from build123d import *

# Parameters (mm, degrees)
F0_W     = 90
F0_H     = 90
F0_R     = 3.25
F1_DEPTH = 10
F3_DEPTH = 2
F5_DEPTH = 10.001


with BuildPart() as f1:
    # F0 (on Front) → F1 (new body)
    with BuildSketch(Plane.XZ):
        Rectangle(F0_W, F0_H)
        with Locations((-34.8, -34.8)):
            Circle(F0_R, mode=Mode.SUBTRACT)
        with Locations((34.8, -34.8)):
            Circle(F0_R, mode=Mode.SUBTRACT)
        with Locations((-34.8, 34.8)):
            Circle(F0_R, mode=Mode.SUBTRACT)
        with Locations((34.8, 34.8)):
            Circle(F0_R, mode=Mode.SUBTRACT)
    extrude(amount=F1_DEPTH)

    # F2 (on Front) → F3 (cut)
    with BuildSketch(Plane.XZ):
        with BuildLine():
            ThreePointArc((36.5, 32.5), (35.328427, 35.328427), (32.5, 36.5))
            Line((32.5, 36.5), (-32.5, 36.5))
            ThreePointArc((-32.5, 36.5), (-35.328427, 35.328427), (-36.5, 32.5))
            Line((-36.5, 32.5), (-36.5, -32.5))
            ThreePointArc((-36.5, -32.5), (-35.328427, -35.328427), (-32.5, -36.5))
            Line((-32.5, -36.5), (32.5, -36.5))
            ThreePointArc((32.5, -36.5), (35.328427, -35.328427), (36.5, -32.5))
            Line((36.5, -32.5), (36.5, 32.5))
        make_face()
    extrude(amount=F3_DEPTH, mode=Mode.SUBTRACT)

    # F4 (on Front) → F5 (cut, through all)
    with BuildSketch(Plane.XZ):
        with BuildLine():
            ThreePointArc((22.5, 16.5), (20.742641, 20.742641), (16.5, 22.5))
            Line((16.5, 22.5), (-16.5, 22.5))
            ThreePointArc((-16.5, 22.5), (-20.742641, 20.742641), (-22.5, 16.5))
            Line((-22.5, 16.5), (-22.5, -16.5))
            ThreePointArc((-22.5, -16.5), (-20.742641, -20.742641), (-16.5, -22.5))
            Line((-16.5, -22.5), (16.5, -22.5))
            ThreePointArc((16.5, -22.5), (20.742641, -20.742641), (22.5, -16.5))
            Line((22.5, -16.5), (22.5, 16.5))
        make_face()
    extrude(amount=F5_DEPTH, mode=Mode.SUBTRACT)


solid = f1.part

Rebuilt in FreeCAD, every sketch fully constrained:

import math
import FreeCAD as App
import Part
import Sketcher
from FreeCAD import Vector


def add_polygon(sketch, points):
    """Adds a closed chain of lines whose ends are joined by coincident constraints."""
    first, n = sketch.GeometryCount, len(points)
    for a, b in zip(points, points[1:] + points[:1]):
        sketch.addGeometry(Part.LineSegment(App.Vector(*a, 0), App.Vector(*b, 0)), False)
    for i in range(n):
        sketch.addConstraint(Sketcher.Constraint("Coincident", first + i, 2, first + (i + 1) % n, 1))

doc = App.newDocument("Part")
body = doc.addObject("PartDesign::Body", "Body")

# Sketch on XZ plane
sketch1 = body.newObject("Sketcher::SketchObject", "Sketch")
sketch1.AttachmentSupport = (doc.getObject("XZ_Plane"), [""])
sketch1.MapMode = "FlatFace"
add_polygon(sketch1, [(-45, 45), (-45, -45), (45, -45), (45, 45)])  # lines 0-3
sketch1.addGeometry(Part.Circle(Vector(-34.8, -34.8, 0), Vector(0, 0, 1), 3.2), False)  # 4
sketch1.addGeometry(Part.Circle(Vector(34.8, -34.8, 0), Vector(0, 0, 1), 3.2), False)  # 5
sketch1.addGeometry(Part.Circle(Vector(-34.8, 34.8, 0), Vector(0, 0, 1), 3.2), False)  # 6
sketch1.addGeometry(Part.Circle(Vector(34.8, 34.8, 0), Vector(0, 0, 1), 3.2), False)  # 7
sketch1.addConstraint(Sketcher.Constraint("Vertical", 0))
sketch1.addConstraint(Sketcher.Constraint("Horizontal", 1))
sketch1.addConstraint(Sketcher.Constraint("Vertical", 2))
sketch1.addConstraint(Sketcher.Constraint("Horizontal", 3))
sketch1.addConstraint(Sketcher.Constraint("Equal", 4, 5))
sketch1.addConstraint(Sketcher.Constraint("Equal", 5, 6))
sketch1.addConstraint(Sketcher.Constraint("Equal", 6, 7))
sketch1.addConstraint(Sketcher.Constraint("Symmetric", 5, 3, 6, 3, -1, 1))
sketch1.addConstraint(Sketcher.Constraint("Symmetric", 4, 3, 7, 3, -1, 1))
sketch1.addConstraint(Sketcher.Constraint("Symmetric", 0, 2, 2, 2, -1, 1))
sketch1.addConstraint(Sketcher.Constraint("Symmetric", 4, 3, 5, 3, -2))
sketch1.addConstraint(Sketcher.Constraint("Equal", 3, 0))
sketch1.addConstraint(Sketcher.Constraint("Diameter", 4, 6.5))
sketch1.addConstraint(Sketcher.Constraint("DistanceX", 1, 1, 1, 2, 90.0))
sketch1.addConstraint(Sketcher.Constraint("DistanceX", 4, 3, -1, 1, 34.8))
sketch1.addConstraint(Sketcher.Constraint("DistanceY", 4, 3, -1, 1, 34.8))
pad1 = body.newObject("PartDesign::Pad", "Pad")
pad1.Profile = sketch1
pad1.Length = 10

# Sketch on XZ plane
sketch2 = body.newObject("Sketcher::SketchObject", "Sketch001")
sketch2.AttachmentSupport = (doc.getObject("XZ_Plane"), [""])
sketch2.MapMode = "FlatFace"
sketch2.addGeometry(Part.ArcOfCircle(Part.Circle(Vector(32.5, 32.5, 0), Vector(0, 0, 1), 4), math.radians(0), math.radians(90)), False)
sketch2.addGeometry(Part.LineSegment(Vector(32.5, 36.5, 0), Vector(-32.5, 36.5, 0)), False)
sketch2.addGeometry(Part.ArcOfCircle(Part.Circle(Vector(-32.5, 32.5, 0), Vector(0, 0, 1), 4), math.radians(90), math.radians(180)), False)
sketch2.addGeometry(Part.LineSegment(Vector(-36.5, 32.5, 0), Vector(-36.5, -32.5, 0)), False)
sketch2.addGeometry(Part.ArcOfCircle(Part.Circle(Vector(-32.5, -32.5, 0), Vector(0, 0, 1), 4), math.radians(-180), math.radians(-90)), False)
sketch2.addGeometry(Part.LineSegment(Vector(-32.5, -36.5, 0), Vector(32.5, -36.5, 0)), False)
sketch2.addGeometry(Part.ArcOfCircle(Part.Circle(Vector(32.5, -32.5, 0), Vector(0, 0, 1), 4), math.radians(-90), math.radians(0)), False)
sketch2.addGeometry(Part.LineSegment(Vector(36.5, -32.5, 0), Vector(36.5, 32.5, 0)), False)
sketch2.addConstraint(Sketcher.Constraint("Tangent", 0, 2, 1, 1))
sketch2.addConstraint(Sketcher.Constraint("Tangent", 1, 2, 2, 1))
sketch2.addConstraint(Sketcher.Constraint("Tangent", 2, 2, 3, 1))
sketch2.addConstraint(Sketcher.Constraint("Tangent", 3, 2, 4, 1))
sketch2.addConstraint(Sketcher.Constraint("Tangent", 4, 2, 5, 1))
sketch2.addConstraint(Sketcher.Constraint("Tangent", 5, 2, 6, 1))
sketch2.addConstraint(Sketcher.Constraint("Tangent", 6, 2, 7, 1))
sketch2.addConstraint(Sketcher.Constraint("Tangent", 7, 2, 0, 1))
sketch2.addConstraint(Sketcher.Constraint("Horizontal", 1))
sketch2.addConstraint(Sketcher.Constraint("Vertical", 3))
sketch2.addConstraint(Sketcher.Constraint("Horizontal", 5))
sketch2.addConstraint(Sketcher.Constraint("Vertical", 7))
sketch2.addConstraint(Sketcher.Constraint("Equal", 0, 2))
sketch2.addConstraint(Sketcher.Constraint("Equal", 2, 4))
sketch2.addConstraint(Sketcher.Constraint("Equal", 4, 6))
sketch2.addConstraint(Sketcher.Constraint("Symmetric", 0, 3, 4, 3, -1, 1))
sketch2.addConstraint(Sketcher.Constraint("Equal", 5, 3))
sketch2.addConstraint(Sketcher.Constraint("Radius", 0, 4.0))
sketch2.addConstraint(Sketcher.Constraint("DistanceX", 1, 2, 1, 1, 65.0))
pocket1 = body.newObject("PartDesign::Pocket", "Pocket")
pocket1.Profile = sketch2
pocket1.Length = 2
pocket1.Reversed = True

# Sketch on XZ plane
sketch3 = body.newObject("Sketcher::SketchObject", "Sketch002")
sketch3.AttachmentSupport = (doc.getObject("XZ_Plane"), [""])
sketch3.MapMode = "FlatFace"
sketch3.addGeometry(Part.ArcOfCircle(Part.Circle(Vector(17, 17, 0), Vector(0, 0, 1), 6), math.radians(0), math.radians(90)), False)
sketch3.addGeometry(Part.LineSegment(Vector(16, 22, 0), Vector(-16, 22, 0)), False)
sketch3.addGeometry(Part.ArcOfCircle(Part.Circle(Vector(-17, 17, 0), Vector(0, 0, 1), 6), math.radians(90), math.radians(180)), False)
sketch3.addGeometry(Part.LineSegment(Vector(-22, 16, 0), Vector(-22, -16, 0)), False)
sketch3.addGeometry(Part.ArcOfCircle(Part.Circle(Vector(-17, -17, 0), Vector(0, 0, 1), 6), math.radians(180), math.radians(270)), False)
sketch3.addGeometry(Part.LineSegment(Vector(-16, -22, 0), Vector(16, -22, 0)), False)
sketch3.addGeometry(Part.ArcOfCircle(Part.Circle(Vector(17, -17, 0), Vector(0, 0, 1), 6), math.radians(-90), math.radians(0)), False)
sketch3.addGeometry(Part.LineSegment(Vector(22, -16, 0), Vector(22, 16, 0)), False)
sketch3.addConstraint(Sketcher.Constraint("Tangent", 0, 2, 1, 1))
sketch3.addConstraint(Sketcher.Constraint("Tangent", 1, 2, 2, 1))
sketch3.addConstraint(Sketcher.Constraint("Tangent", 2, 2, 3, 1))
sketch3.addConstraint(Sketcher.Constraint("Tangent", 3, 2, 4, 1))
sketch3.addConstraint(Sketcher.Constraint("Tangent", 4, 2, 5, 1))
sketch3.addConstraint(Sketcher.Constraint("Tangent", 5, 2, 6, 1))
sketch3.addConstraint(Sketcher.Constraint("Tangent", 6, 2, 7, 1))
sketch3.addConstraint(Sketcher.Constraint("Tangent", 7, 2, 0, 1))
sketch3.addConstraint(Sketcher.Constraint("Horizontal", 1))
sketch3.addConstraint(Sketcher.Constraint("Vertical", 3))
sketch3.addConstraint(Sketcher.Constraint("Horizontal", 5))
sketch3.addConstraint(Sketcher.Constraint("Vertical", 7))
sketch3.addConstraint(Sketcher.Constraint("Equal", 0, 2))
sketch3.addConstraint(Sketcher.Constraint("Equal", 2, 4))
sketch3.addConstraint(Sketcher.Constraint("Equal", 4, 6))
sketch3.addConstraint(Sketcher.Constraint("Symmetric", 0, 3, 4, 3, -1, 1))
sketch3.addConstraint(Sketcher.Constraint("Equal", 5, 3))
sketch3.addConstraint(Sketcher.Constraint("Radius", 0, 5.999999))
sketch3.addConstraint(Sketcher.Constraint("DistanceX", 1, 2, 1, 1, 33.0))
pocket2 = body.newObject("PartDesign::Pocket", "Pocket001")
pocket2.Profile = sketch3
pocket2.Type = "ThroughAll"
pocket2.Reversed = True

doc.recompute()
